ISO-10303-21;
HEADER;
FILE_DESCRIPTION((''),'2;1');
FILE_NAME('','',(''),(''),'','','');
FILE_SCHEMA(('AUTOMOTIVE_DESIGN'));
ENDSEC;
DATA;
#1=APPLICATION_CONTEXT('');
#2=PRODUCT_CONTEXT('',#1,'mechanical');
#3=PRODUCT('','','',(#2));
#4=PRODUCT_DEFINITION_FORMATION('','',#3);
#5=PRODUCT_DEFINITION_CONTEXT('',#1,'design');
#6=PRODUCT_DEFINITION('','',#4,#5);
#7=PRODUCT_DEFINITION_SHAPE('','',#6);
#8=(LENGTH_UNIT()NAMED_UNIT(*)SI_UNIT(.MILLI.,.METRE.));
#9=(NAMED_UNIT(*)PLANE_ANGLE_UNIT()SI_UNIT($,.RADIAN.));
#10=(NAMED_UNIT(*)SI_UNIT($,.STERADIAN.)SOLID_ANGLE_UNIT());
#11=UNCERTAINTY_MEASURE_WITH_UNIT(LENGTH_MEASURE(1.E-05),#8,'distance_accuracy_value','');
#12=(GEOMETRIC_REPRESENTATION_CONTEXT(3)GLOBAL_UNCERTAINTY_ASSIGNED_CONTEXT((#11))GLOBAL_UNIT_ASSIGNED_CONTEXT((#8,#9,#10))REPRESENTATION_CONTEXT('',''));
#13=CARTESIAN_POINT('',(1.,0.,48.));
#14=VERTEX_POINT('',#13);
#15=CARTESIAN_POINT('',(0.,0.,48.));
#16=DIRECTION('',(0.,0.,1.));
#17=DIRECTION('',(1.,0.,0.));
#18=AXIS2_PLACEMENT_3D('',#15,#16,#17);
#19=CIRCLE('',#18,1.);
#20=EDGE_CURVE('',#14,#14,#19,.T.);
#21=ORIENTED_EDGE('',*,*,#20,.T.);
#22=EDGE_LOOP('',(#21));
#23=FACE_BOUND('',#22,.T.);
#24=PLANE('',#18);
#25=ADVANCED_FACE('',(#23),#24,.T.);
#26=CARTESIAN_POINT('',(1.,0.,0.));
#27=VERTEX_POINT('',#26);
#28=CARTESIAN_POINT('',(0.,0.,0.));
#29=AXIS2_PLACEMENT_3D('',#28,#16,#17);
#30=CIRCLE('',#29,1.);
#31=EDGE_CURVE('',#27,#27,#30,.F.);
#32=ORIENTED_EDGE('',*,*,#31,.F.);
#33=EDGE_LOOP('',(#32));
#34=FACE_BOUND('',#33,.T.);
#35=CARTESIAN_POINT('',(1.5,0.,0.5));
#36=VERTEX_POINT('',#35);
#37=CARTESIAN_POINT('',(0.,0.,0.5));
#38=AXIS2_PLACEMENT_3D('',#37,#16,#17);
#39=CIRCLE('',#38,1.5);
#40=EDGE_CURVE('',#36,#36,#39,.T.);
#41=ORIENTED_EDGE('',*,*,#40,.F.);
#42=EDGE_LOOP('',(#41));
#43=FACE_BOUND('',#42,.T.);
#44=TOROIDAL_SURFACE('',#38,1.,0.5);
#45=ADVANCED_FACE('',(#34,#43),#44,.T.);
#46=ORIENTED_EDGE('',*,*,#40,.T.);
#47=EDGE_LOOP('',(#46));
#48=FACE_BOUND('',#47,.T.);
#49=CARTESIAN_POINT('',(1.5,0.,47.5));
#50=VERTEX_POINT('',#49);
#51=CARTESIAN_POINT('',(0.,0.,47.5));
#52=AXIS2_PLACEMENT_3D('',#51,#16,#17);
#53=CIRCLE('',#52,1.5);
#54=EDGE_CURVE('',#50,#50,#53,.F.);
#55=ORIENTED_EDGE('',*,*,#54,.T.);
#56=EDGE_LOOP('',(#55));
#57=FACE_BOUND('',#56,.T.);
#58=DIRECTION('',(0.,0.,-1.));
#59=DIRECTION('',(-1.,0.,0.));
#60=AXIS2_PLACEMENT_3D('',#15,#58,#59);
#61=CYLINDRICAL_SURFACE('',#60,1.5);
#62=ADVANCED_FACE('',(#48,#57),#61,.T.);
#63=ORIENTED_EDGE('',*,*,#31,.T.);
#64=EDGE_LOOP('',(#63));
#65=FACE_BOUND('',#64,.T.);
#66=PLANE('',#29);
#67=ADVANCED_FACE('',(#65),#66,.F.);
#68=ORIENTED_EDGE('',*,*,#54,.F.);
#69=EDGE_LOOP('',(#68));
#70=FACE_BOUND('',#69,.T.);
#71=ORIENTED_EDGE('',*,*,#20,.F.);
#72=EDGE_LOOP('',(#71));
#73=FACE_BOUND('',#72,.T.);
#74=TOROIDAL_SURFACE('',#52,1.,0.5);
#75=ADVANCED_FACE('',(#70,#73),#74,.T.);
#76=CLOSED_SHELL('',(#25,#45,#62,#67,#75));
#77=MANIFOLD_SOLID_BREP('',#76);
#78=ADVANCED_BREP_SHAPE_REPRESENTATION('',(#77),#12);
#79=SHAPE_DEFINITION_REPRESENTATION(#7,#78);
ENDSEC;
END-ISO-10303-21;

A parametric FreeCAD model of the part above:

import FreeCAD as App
import Part
import Sketcher
from FreeCAD import Vector
Q = App.Units.Quantity


def edges_at(feature, points):
    """Names of the edges that pass closest to the given points."""
    edges = feature.Shape.Edges
    near = lambda p: min(range(len(edges)), key=lambda i: edges[i].distToShape(Part.Vertex(*p))[0])
    return sorted({f"Edge{near(p) + 1}" for p in points})

doc = App.newDocument("Part")
body = doc.addObject("PartDesign::Body", "Body")

# Sketch on XY plane
sketch1 = body.newObject("Sketcher::SketchObject", "Sketch")
sketch1.AttachmentSupport = (doc.getObject("XY_Plane"), [""])
sketch1.MapMode = "FlatFace"
sketch1.addGeometry(Part.Circle(Vector(0, 0, 0), Vector(0, 0, 1), 1.5), False)
sketch1.addConstraint(Sketcher.Constraint("Coincident", 0, 3, -1, 1))
sketch1.addConstraint(Sketcher.Constraint("Diameter", 0, Q("3 mm")))
pad1 = body.newObject("PartDesign::Pad", "Pad")
pad1.Profile = sketch1
pad1.Length = 48
doc.recompute()

fillet = body.newObject("PartDesign::Fillet", "Fillet")
fillet.Base = (pad1, edges_at(pad1, [(-1.5, 0, 0), (-1.5, 0, 48)]))
fillet.Radius = 0.5

doc.recompute()
